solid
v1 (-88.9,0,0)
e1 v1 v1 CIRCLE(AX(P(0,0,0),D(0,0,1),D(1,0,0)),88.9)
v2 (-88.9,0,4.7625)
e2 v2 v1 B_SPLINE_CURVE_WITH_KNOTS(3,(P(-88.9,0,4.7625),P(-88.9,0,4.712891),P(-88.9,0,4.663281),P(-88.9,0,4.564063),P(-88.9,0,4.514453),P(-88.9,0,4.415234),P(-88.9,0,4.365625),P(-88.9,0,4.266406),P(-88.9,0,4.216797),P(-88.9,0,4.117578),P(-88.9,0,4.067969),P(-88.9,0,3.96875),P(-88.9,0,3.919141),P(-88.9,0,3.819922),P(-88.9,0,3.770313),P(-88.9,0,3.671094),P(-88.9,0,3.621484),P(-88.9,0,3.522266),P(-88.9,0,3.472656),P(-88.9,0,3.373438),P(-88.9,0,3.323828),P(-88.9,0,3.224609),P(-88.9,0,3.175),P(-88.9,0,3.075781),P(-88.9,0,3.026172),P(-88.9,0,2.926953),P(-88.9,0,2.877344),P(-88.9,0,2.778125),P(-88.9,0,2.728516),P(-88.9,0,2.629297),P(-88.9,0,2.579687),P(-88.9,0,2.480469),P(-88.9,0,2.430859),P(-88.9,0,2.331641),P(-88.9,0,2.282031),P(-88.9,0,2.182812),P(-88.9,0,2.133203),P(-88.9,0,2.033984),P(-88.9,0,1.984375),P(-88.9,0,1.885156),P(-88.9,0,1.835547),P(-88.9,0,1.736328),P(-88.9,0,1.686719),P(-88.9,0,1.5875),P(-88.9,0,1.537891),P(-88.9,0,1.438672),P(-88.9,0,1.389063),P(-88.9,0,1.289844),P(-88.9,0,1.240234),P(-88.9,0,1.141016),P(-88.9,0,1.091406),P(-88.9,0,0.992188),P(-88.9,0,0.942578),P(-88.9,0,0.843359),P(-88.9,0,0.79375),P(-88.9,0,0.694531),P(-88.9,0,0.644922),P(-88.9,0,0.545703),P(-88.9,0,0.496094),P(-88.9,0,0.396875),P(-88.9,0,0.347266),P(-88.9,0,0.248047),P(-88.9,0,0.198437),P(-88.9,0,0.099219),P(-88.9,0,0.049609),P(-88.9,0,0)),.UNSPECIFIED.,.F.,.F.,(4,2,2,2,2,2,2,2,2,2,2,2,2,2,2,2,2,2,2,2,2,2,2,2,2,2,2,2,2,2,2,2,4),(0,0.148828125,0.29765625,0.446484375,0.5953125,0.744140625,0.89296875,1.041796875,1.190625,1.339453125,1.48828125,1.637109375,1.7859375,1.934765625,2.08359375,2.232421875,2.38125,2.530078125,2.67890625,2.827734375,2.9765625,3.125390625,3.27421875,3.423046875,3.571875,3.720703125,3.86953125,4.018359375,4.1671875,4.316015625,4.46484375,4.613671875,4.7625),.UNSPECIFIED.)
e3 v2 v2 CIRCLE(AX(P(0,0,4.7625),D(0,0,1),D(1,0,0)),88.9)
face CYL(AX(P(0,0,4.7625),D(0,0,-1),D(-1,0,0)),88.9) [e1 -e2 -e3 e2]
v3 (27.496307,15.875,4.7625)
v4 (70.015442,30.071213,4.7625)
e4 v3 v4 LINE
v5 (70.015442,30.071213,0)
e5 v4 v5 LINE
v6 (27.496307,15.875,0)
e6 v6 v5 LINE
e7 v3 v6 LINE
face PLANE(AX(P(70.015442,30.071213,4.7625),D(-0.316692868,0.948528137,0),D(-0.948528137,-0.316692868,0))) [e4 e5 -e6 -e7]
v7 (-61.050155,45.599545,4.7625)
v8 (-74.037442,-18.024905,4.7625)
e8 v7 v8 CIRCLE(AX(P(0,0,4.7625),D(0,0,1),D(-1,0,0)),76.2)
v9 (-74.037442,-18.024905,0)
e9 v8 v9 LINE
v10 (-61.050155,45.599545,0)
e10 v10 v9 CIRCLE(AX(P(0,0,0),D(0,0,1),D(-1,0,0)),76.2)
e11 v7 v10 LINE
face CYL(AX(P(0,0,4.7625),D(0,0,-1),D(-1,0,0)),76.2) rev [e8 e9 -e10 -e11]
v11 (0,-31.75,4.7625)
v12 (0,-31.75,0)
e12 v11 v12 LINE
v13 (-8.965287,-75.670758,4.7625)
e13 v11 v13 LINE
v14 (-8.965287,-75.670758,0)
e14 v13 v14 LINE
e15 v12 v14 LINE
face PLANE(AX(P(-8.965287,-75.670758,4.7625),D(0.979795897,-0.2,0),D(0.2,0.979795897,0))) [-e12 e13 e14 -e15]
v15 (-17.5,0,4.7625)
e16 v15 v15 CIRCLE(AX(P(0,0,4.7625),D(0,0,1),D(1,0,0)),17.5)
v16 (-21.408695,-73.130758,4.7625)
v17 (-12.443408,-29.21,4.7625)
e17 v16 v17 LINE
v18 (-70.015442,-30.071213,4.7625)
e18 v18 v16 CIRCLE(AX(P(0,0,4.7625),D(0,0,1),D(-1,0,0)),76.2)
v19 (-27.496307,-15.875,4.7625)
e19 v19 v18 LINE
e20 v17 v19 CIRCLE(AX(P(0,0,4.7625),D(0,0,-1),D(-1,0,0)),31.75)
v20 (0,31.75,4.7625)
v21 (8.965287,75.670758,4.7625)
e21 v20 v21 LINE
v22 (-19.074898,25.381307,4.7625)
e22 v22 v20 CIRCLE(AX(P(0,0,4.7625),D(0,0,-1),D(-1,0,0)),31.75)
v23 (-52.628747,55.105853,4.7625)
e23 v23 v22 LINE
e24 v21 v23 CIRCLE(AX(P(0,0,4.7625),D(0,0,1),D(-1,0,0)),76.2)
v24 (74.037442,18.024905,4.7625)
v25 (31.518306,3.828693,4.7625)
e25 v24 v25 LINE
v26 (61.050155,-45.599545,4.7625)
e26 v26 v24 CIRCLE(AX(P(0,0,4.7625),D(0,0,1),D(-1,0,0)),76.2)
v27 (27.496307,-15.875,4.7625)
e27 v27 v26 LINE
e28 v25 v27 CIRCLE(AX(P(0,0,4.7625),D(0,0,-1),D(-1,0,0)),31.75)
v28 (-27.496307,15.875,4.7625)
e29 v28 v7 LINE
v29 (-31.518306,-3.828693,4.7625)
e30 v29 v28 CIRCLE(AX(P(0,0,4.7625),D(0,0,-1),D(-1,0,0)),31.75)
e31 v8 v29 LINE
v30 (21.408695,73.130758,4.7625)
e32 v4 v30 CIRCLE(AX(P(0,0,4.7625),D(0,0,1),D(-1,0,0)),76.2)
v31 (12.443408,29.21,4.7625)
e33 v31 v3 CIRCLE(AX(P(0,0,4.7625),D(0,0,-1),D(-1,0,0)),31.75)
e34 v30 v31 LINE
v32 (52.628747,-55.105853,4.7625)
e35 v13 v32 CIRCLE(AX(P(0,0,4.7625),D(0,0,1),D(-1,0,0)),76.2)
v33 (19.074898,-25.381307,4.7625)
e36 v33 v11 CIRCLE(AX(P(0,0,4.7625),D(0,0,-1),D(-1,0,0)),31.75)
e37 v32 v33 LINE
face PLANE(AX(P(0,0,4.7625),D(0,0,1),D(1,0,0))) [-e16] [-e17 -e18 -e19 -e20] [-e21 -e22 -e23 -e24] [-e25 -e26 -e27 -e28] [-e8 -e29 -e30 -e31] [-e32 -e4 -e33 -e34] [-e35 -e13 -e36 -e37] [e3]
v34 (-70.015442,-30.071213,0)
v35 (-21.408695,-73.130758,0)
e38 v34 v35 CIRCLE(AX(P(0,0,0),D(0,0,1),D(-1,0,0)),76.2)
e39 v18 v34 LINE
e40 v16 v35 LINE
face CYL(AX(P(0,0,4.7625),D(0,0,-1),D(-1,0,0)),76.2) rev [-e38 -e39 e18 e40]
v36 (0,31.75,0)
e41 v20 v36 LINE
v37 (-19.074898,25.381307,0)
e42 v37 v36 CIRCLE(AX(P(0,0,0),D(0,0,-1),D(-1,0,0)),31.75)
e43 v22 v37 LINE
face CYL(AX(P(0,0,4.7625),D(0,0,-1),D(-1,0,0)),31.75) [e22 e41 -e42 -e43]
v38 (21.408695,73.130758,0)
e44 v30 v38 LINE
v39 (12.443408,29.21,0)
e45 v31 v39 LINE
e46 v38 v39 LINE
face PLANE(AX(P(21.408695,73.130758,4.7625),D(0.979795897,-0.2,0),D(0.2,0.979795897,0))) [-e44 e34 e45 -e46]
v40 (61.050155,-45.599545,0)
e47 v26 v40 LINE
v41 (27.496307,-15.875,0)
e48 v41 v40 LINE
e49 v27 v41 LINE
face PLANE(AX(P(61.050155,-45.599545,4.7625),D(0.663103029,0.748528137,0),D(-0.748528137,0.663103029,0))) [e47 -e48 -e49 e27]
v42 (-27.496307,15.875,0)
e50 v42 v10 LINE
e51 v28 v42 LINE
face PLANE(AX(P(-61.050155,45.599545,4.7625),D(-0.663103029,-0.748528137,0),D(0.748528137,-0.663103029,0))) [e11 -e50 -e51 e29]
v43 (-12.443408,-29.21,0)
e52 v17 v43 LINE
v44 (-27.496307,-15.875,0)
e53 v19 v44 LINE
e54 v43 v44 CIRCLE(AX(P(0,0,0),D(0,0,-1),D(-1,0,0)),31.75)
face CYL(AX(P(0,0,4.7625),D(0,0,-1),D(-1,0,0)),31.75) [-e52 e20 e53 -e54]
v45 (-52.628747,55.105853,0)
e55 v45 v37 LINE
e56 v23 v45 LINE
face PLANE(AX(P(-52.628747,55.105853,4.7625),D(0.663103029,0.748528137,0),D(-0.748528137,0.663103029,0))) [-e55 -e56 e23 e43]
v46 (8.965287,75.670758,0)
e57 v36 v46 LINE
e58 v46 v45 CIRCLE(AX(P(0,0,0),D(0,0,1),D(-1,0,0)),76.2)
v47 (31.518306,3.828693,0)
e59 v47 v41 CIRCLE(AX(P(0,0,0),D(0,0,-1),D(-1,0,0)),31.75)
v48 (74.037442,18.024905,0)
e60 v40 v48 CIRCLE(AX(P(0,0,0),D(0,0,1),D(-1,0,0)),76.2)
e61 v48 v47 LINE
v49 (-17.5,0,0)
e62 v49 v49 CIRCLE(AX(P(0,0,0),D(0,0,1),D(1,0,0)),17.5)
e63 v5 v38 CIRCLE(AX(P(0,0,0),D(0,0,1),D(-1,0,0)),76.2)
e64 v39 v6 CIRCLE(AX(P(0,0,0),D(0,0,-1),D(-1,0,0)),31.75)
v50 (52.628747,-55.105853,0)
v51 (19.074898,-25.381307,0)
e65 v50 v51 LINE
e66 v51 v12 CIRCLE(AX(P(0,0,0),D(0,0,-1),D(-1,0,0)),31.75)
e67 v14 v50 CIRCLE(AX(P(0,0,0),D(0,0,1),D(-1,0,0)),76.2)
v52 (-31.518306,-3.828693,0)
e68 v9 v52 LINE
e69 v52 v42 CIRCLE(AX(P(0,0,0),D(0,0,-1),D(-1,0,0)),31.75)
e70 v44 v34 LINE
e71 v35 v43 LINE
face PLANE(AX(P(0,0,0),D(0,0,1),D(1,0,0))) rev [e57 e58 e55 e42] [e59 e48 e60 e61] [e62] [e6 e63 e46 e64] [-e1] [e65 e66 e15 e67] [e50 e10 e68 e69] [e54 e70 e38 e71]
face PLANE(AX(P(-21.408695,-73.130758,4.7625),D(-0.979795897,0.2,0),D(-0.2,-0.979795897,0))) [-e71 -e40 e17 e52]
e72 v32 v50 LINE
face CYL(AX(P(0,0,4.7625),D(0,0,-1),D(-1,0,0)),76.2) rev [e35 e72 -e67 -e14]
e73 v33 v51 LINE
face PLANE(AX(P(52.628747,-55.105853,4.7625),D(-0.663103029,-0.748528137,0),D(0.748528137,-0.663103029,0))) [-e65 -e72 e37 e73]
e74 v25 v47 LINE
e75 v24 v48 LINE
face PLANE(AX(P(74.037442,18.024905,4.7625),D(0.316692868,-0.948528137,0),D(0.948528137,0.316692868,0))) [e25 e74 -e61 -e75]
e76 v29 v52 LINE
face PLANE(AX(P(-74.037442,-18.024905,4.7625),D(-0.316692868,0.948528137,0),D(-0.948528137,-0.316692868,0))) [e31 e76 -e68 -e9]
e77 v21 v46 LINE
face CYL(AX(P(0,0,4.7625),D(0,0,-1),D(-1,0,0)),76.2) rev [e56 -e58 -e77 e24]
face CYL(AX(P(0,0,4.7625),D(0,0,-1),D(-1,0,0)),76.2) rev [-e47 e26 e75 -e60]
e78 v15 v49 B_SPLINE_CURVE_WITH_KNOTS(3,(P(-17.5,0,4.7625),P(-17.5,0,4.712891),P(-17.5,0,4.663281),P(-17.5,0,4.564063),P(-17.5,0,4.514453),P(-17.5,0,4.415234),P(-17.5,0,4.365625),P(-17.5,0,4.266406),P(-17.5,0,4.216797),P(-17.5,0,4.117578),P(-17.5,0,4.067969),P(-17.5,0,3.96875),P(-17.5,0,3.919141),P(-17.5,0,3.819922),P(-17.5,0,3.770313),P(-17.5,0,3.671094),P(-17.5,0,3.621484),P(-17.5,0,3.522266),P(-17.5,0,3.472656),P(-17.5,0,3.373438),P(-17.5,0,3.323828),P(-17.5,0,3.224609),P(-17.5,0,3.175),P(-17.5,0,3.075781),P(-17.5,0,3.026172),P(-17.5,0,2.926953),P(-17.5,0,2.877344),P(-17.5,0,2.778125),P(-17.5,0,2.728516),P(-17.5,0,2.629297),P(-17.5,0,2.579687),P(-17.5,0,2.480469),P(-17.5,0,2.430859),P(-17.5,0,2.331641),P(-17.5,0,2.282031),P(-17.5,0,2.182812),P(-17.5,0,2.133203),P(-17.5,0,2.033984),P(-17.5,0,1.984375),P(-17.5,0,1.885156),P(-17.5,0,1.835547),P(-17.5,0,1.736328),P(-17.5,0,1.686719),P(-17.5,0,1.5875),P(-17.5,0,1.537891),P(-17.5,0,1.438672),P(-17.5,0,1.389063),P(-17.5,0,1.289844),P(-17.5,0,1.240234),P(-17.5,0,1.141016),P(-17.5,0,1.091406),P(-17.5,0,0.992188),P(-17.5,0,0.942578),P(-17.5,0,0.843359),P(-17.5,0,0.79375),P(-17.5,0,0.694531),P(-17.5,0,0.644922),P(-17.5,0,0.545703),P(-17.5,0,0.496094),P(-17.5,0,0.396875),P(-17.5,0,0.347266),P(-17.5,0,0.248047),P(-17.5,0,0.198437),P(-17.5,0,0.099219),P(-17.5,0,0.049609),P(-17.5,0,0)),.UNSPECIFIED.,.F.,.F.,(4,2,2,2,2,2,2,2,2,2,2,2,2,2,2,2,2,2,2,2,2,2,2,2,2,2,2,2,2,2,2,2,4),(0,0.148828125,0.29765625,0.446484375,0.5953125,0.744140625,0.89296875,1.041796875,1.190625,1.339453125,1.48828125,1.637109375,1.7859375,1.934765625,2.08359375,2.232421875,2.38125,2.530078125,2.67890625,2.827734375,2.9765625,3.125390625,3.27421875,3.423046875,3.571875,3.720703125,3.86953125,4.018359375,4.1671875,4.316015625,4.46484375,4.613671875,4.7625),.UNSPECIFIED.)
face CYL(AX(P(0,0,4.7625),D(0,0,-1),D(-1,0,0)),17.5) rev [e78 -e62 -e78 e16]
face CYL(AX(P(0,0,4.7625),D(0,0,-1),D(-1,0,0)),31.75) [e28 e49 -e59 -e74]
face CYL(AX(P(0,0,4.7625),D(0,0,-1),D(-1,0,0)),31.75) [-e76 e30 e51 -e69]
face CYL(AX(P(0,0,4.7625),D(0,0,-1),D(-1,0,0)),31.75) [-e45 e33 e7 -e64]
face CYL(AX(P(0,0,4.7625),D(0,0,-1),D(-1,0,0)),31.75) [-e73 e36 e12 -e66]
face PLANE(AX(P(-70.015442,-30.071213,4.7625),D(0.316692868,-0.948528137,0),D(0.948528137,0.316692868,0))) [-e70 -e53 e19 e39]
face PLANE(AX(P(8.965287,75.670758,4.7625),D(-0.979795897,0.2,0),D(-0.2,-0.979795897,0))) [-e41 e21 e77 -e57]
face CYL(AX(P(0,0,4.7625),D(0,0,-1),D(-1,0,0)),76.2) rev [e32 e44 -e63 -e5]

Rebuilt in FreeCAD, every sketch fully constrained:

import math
import FreeCAD as App
import Part
import Sketcher

V = App.Vector
Q = App.Units.Quantity

doc = App.newDocument("Part")
body = doc.addObject("PartDesign::Body", "Body")

sketch1 = body.newObject("Sketcher::SketchObject", "Sketch")
sketch1.AttachmentSupport = (doc.getObject("XY_Plane"), [""])
sketch1.MapMode = "FlatFace"
sketch1.addGeometry([
    Part.Circle(V(0, 0, 0), V(0, 0, 1), 89),
    Part.ArcOfCircle(Part.Circle(V(0, 0, 0), V(0, 0, 1), 76), math.radians(23), math.radians(74)),
    Part.LineSegment(V(70, 30, 0), V(27, 16, 0)),
    Part.ArcOfCircle(Part.Circle(V(0, 0, 0), V(0, 0, 1), 32), math.radians(30), math.radians(67)),
    Part.LineSegment(V(12, 29, 0), V(21, 73, 0)),
    Part.ArcOfCircle(Part.Circle(V(0, 0, 0), V(0, 0, 1), 76), math.radians(83), math.radians(134)),
    Part.LineSegment(V(9, 76, 0), V(0, 32, 0)),
    Part.ArcOfCircle(Part.Circle(V(0, 0, 0), V(0, 0, 1), 32), math.radians(90), math.radians(127)),
    Part.LineSegment(V(-19, 25, 0), V(-53, 55, 0)),
    Part.ArcOfCircle(Part.Circle(V(0, 0, 0), V(0, 0, 1), 76), math.radians(143), math.radians(194)),
    Part.LineSegment(V(-61, 46, 0), V(-27, 16, 0)),
    Part.ArcOfCircle(Part.Circle(V(0, 0, 0), V(0, 0, 1), 32), math.radians(150), math.radians(187)),
    Part.LineSegment(V(-32, -4, 0), V(-74, -18, 0)),
    Part.ArcOfCircle(Part.Circle(V(0, 0, 0), V(0, 0, 1), 76), math.radians(-37), math.radians(14)),
    Part.LineSegment(V(61, -46, 0), V(27, -16, 0)),
    Part.ArcOfCircle(Part.Circle(V(0, 0, 0), V(0, 0, 1), 32), math.radians(-30), math.radians(7)),
    Part.LineSegment(V(32, 4, 0), V(74, 18, 0)),
    Part.ArcOfCircle(Part.Circle(V(0, 0, 0), V(0, 0, 1), 76), math.radians(-97), math.radians(-46)),
    Part.LineSegment(V(-9, -76, 0), V(0, -32, 0)),
    Part.ArcOfCircle(Part.Circle(V(0, 0, 0), V(0, 0, 1), 32), math.radians(-90), math.radians(-53)),
    Part.LineSegment(V(19, -25, 0), V(53, -55, 0)),
    Part.Circle(V(0, 0, 0), V(0, 0, 1), 18),
    Part.ArcOfCircle(Part.Circle(V(0, 0, 0), V(0, 0, 1), 76), math.radians(-157), math.radians(-106)),
    Part.LineSegment(V(-70, -30, 0), V(-27, -16, 0)),
    Part.ArcOfCircle(Part.Circle(V(0, 0, 0), V(0, 0, 1), 32), math.radians(-150), math.radians(-113)),
    Part.LineSegment(V(-12, -29, 0), V(-21, -73, 0)),
], False)
sketch1.addConstraint([
    Sketcher.Constraint("Coincident", 1, 1, 2, 1),
    Sketcher.Constraint("Coincident", 2, 2, 3, 1),
    Sketcher.Constraint("Coincident", 3, 2, 4, 1),
    Sketcher.Constraint("Coincident", 4, 2, 1, 2),
    Sketcher.Constraint("Coincident", 5, 1, 6, 1),
    Sketcher.Constraint("Coincident", 6, 2, 7, 1),
    Sketcher.Constraint("Coincident", 7, 2, 8, 1),
    Sketcher.Constraint("Coincident", 8, 2, 5, 2),
    Sketcher.Constraint("Coincident", 9, 1, 10, 1),
    Sketcher.Constraint("Coincident", 10, 2, 11, 1),
    Sketcher.Constraint("Coincident", 11, 2, 12, 1),
    Sketcher.Constraint("Coincident", 12, 2, 9, 2),
    Sketcher.Constraint("Coincident", 13, 1, 14, 1),
    Sketcher.Constraint("Coincident", 14, 2, 15, 1),
    Sketcher.Constraint("Coincident", 15, 2, 16, 1),
    Sketcher.Constraint("Coincident", 16, 2, 13, 2),
    Sketcher.Constraint("Coincident", 17, 1, 18, 1),
    Sketcher.Constraint("Coincident", 18, 2, 19, 1),
    Sketcher.Constraint("Coincident", 19, 2, 20, 1),
    Sketcher.Constraint("Coincident", 20, 2, 17, 2),
    Sketcher.Constraint("Coincident", 22, 1, 23, 1),
    Sketcher.Constraint("Coincident", 23, 2, 24, 1),
    Sketcher.Constraint("Coincident", 24, 2, 25, 1),
    Sketcher.Constraint("Coincident", 25, 2, 22, 2),
    Sketcher.Constraint("Coincident", 0, 3, -1, 1),
    Sketcher.Constraint("Coincident", 1, 3, -1, 1),
    Sketcher.Constraint("Coincident", 3, 3, -1, 1),
    Sketcher.Constraint("Coincident", 5, 3, -1, 1),
    Sketcher.Constraint("Coincident", 7, 3, -1, 1),
    Sketcher.Constraint("Coincident", 9, 3, -1, 1),
    Sketcher.Constraint("Coincident", 11, 3, -1, 1),
    Sketcher.Constraint("Coincident", 13, 3, -1, 1),
    Sketcher.Constraint("Coincident", 15, 3, -1, 1),
    Sketcher.Constraint("Coincident", 17, 3, -1, 1),
    Sketcher.Constraint("Coincident", 19, 3, -1, 1),
    Sketcher.Constraint("Coincident", 21, 3, -1, 1),
    Sketcher.Constraint("Coincident", 22, 3, -1, 1),
    Sketcher.Constraint("Coincident", 24, 3, -1, 1),
    Sketcher.Constraint("Equal", 1, 5),
    Sketcher.Constraint("Equal", 3, 7),
    Sketcher.Constraint("Equal", 5, 9),
    Sketcher.Constraint("Equal", 7, 11),
    Sketcher.Constraint("Equal", 9, 13),
    Sketcher.Constraint("Equal", 11, 15),
    Sketcher.Constraint("Equal", 13, 17),
    Sketcher.Constraint("Equal", 15, 19),
    Sketcher.Constraint("Equal", 17, 22),
    Sketcher.Constraint("Equal", 19, 24),
    Sketcher.Constraint("PointOnObject", 6, 2, -2),
    Sketcher.Constraint("PointOnObject", 18, 2, -2),
    Sketcher.Constraint("Parallel", 4, 6),
    Sketcher.Constraint("Parallel", 8, 10),
    Sketcher.Constraint("Parallel", 2, 12),
    Sketcher.Constraint("Parallel", 10, 14),
    Sketcher.Constraint("Parallel", 12, 16),
    Sketcher.Constraint("Parallel", 6, 18),
    Sketcher.Constraint("Parallel", 14, 20),
    Sketcher.Constraint("Parallel", 16, 23),
    Sketcher.Constraint("Parallel", 18, 25),
    Sketcher.Constraint("Horizontal", 2, 2, 10, 2),
    Sketcher.Constraint("Horizontal", 14, 2, 23, 2),
    Sketcher.Constraint("Vertical", 2, 2, 14, 2),
    Sketcher.Constraint("Equal", 2, 4),
    Sketcher.Constraint("Equal", 4, 6),
    Sketcher.Constraint("Equal", 6, 8),
    Sketcher.Constraint("Equal", 8, 10),
    Sketcher.Constraint("Equal", 10, 12),
    Sketcher.Constraint("Equal", 14, 16),
    Sketcher.Constraint("Equal", 18, 20),
    Sketcher.Constraint("Equal", 23, 25),
    Sketcher.Constraint("Diameter", 0, Q("7 in")),
    Sketcher.Constraint("Radius", 1, Q("3 in")),
    Sketcher.Constraint("Radius", 3, Q("1.25 in")),
    Sketcher.Constraint("DistanceY", 4, 2, 5, 1, Q("0.1 in")),
    Sketcher.Constraint("Diameter", 21, Q("35 mm")),
    Sketcher.Constraint("DistanceY", -1, 1, 2, 2, Q("0.625 in")),
])
pad1 = body.newObject("PartDesign::Pad", "Pad")
pad1.Profile = sketch1
pad1.Length = Q("0.1875 in")

doc.recompute()
